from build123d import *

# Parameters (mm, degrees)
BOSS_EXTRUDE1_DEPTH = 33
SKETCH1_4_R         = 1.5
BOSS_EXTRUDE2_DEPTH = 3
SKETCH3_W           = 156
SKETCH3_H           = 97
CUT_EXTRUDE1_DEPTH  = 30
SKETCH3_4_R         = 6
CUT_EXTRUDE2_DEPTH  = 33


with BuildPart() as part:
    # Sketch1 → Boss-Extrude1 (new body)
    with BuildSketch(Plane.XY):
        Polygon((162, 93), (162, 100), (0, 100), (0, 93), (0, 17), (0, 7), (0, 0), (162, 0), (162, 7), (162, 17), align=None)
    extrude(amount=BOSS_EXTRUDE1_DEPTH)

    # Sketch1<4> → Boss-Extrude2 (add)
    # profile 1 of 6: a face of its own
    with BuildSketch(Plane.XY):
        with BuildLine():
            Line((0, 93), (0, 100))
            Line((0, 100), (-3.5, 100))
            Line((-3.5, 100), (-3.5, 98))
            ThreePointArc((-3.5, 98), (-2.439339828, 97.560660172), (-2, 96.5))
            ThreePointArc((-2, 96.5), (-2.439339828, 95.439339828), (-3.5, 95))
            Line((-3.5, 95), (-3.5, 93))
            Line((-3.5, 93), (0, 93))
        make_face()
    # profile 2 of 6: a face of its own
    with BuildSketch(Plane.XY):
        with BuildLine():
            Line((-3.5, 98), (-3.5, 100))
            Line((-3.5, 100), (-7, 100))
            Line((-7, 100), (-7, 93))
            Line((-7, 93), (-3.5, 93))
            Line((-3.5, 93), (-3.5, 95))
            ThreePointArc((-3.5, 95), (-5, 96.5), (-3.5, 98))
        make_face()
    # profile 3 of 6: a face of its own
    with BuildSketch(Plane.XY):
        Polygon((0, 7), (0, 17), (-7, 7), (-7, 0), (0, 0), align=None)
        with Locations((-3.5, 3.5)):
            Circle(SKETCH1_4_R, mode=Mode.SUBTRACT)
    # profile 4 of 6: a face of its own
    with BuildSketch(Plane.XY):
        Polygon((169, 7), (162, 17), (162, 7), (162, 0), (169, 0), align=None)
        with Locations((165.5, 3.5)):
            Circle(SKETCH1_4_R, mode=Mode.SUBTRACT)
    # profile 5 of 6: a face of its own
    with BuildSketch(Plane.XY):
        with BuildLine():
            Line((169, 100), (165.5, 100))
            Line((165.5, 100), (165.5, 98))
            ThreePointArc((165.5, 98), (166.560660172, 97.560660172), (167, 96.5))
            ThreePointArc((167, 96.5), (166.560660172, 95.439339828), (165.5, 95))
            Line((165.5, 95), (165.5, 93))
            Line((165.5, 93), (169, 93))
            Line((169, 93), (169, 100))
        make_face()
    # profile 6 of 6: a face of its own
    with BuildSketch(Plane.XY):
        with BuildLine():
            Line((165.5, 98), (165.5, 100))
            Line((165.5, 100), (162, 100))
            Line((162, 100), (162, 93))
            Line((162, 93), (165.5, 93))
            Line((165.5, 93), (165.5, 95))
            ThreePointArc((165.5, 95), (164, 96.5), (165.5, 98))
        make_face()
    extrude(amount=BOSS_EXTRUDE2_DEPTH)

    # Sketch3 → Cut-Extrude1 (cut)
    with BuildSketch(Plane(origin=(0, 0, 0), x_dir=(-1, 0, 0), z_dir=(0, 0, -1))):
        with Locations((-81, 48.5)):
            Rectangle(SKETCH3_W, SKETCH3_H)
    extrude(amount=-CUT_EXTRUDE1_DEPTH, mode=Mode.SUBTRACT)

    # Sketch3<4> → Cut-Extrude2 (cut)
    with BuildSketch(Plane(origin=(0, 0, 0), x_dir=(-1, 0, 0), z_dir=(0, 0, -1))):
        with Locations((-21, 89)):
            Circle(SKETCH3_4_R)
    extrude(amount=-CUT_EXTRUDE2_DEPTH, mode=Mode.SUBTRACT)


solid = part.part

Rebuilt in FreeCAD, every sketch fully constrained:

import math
import FreeCAD as App
import Part
import Sketcher
Q = App.Units.Quantity


def add_polygon(sketch, points):
    """Adds a closed chain of lines whose ends are joined by coincident constraints."""
    first, n = sketch.GeometryCount, len(points)
    for a, b in zip(points, points[1:] + points[:1]):
        sketch.addGeometry(Part.LineSegment(App.Vector(*a, 0), App.Vector(*b, 0)), False)
    for i in range(n):
        sketch.addConstraint(Sketcher.Constraint("Coincident", first + i, 2, first + (i + 1) % n, 1))

doc = App.newDocument("Part")
body = doc.addObject("PartDesign::Body", "Body")

# Sketch on XY plane
sketch1 = body.newObject("Sketcher::SketchObject", "Sketch")
sketch1.AttachmentSupport = (doc.getObject("XY_Plane"), [""])
sketch1.MapMode = "FlatFace"
add_polygon(sketch1, [(162, 100), (0, 100), (0, 0), (162, 0)])  # lines 0-3
sketch1.addConstraint([
    Sketcher.Constraint("Horizontal", 0),
    Sketcher.Constraint("Vertical", 1),
    Sketcher.Constraint("Horizontal", 2),
    Sketcher.Constraint("Vertical", 3),
    Sketcher.Constraint("Coincident", 1, 2, -1, 1),
    Sketcher.Constraint("DistanceX", 0, 2, 0, 1, Q("162 mm")),
    Sketcher.Constraint("DistanceY", 1, 2, 1, 1, Q("100 mm")),
])
pad1 = body.newObject("PartDesign::Pad", "Pad")
pad1.Profile = sketch1
pad1.Length = 33

# Sketch on XY plane
sketch2 = body.newObject("Sketcher::SketchObject", "Sketch001")
sketch2.AttachmentSupport = (doc.getObject("XY_Plane"), [""])
sketch2.MapMode = "FlatFace"
add_polygon(sketch2, [(0, 93), (0, 100), (-7, 100), (-7, 93)])  # lines 0-3
sketch2.addGeometry(Part.ArcOfCircle(Part.Circle(App.Vector(-3.5, 96.5, 0), App.Vector(0, 0, 1), 1.5), math.radians(0), math.radians(90)), False)  # 4
sketch2.addGeometry(Part.ArcOfCircle(Part.Circle(App.Vector(-3.5, 96.5, 0), App.Vector(0, 0, 1), 1.5), math.radians(-90), math.radians(0)), False)  # 5
sketch2.addGeometry(Part.ArcOfCircle(Part.Circle(App.Vector(-3.5, 96.5, 0), App.Vector(0, 0, 1), 1.5), math.radians(90), math.radians(270)), False)  # 6
add_polygon(sketch2, [(0, 17), (-7, 7), (-7, 0), (0, 0)])  # lines 7-10
sketch2.addGeometry(Part.Circle(App.Vector(-3.5, 3.5, 0), App.Vector(0, 0, 1), 1.5), False)  # 11
add_polygon(sketch2, [(169, 7), (162, 17), (162, 0), (169, 0)])  # lines 12-15
sketch2.addGeometry(Part.Circle(App.Vector(165.5, 3.5, 0), App.Vector(0, 0, 1), 1.5), False)  # 16
add_polygon(sketch2, [(169, 100), (162, 100), (162, 93), (169, 93)])  # lines 17-20
sketch2.addGeometry(Part.ArcOfCircle(Part.Circle(App.Vector(165.5, 96.5, 0), App.Vector(0, 0, 1), 1.5), math.radians(0), math.radians(90)), False)  # 21
sketch2.addGeometry(Part.ArcOfCircle(Part.Circle(App.Vector(165.5, 96.5, 0), App.Vector(0, 0, 1), 1.5), math.radians(-90), math.radians(0)), False)  # 22
sketch2.addGeometry(Part.ArcOfCircle(Part.Circle(App.Vector(165.5, 96.5, 0), App.Vector(0, 0, 1), 1.5), math.radians(90), math.radians(270)), False)  # 23
sketch2.addConstraint([
    Sketcher.Constraint("Tangent", 4, 1, 5, 2),
    Sketcher.Constraint("Tangent", 5, 1, 6, 2),
    Sketcher.Constraint("Tangent", 6, 1, 4, 2),
    Sketcher.Constraint("Tangent", 21, 1, 22, 2),
    Sketcher.Constraint("Tangent", 22, 1, 23, 2),
    Sketcher.Constraint("Tangent", 23, 1, 21, 2),
    Sketcher.Constraint("Vertical", 0),
    Sketcher.Constraint("Horizontal", 1),
    Sketcher.Constraint("Vertical", 2),
    Sketcher.Constraint("Horizontal", 3),
    Sketcher.Constraint("Vertical", 8),
    Sketcher.Constraint("Horizontal", 9),
    Sketcher.Constraint("Vertical", 10),
    Sketcher.Constraint("Vertical", 13),
    Sketcher.Constraint("Horizontal", 14),
    Sketcher.Constraint("Vertical", 15),
    Sketcher.Constraint("Horizontal", 17),
    Sketcher.Constraint("Vertical", 18),
    Sketcher.Constraint("Horizontal", 19),
    Sketcher.Constraint("Vertical", 20),
    Sketcher.Constraint("Coincident", 9, 2, -1, 1),
    Sketcher.Constraint("Equal", 6, 11),
    Sketcher.Constraint("Equal", 11, 16),
    Sketcher.Constraint("Equal", 16, 21),
    Sketcher.Constraint("PointOnObject", 0, 2, -2),
    Sketcher.Constraint("PointOnObject", 13, 2, -1),
    Sketcher.Constraint("Horizontal", 11, 3, 16, 3),
    Sketcher.Constraint("Horizontal", 6, 3, 21, 3),
    Sketcher.Constraint("Horizontal", 23, 3, 4, 1),
    Sketcher.Constraint("Horizontal", 10, 2, 12, 2),
    Sketcher.Constraint("Horizontal", 7, 2, 15, 2),
    Sketcher.Constraint("Horizontal", 1, 2, 17, 2),
    Sketcher.Constraint("Horizontal", 3, 2, 18, 2),
    Sketcher.Constraint("Horizontal", 4, 1, 21, 1),
    Sketcher.Constraint("Vertical", 6, 3, 11, 3),
    Sketcher.Constraint("Vertical", 16, 3, 21, 3),
    Sketcher.Constraint("Vertical", 11, 3, 5, 1),
    Sketcher.Constraint("Vertical", 5, 1, 6, 1),
    Sketcher.Constraint("Vertical", 2, 2, 7, 2),
    Sketcher.Constraint("Vertical", 13, 2, 17, 2),
    Sketcher.Constraint("Vertical", 15, 2, 19, 2),
    Sketcher.Constraint("Vertical", 23, 3, 22, 1),
    Sketcher.Constraint("Vertical", 22, 1, 23, 1),
    Sketcher.Constraint("Equal", 9, 14),
    Sketcher.Constraint("Equal", 19, 0),
    Sketcher.Constraint("Equal", 2, 8),
    Sketcher.Constraint("Diameter", 11, Q("3 mm")),
    Sketcher.Constraint("DistanceX", 1, 2, 1, 1, Q("7 mm")),
    Sketcher.Constraint("DistanceY", 10, 1, 10, 2, Q("17 mm")),
    Sketcher.Constraint("DistanceY", -1, 1, 0, 2, Q("100 mm")),
    Sketcher.Constraint("DistanceX", 4, 1, -1, 1, Q("2 mm")),
    Sketcher.Constraint("DistanceY", -1, 1, 5, 1, Q("95 mm")),
    Sketcher.Constraint("DistanceX", -1, 1, 12, 2, Q("162 mm")),
    Sketcher.Constraint("DistanceX", -1, 1, 21, 1, Q("167 mm")),
    Sketcher.Constraint("DistanceY", 11, 3, 5, 3, Q("93 mm")),
])
pad2 = body.newObject("PartDesign::Pad", "Pad001")
pad2.Profile = sketch2
pad2.Length = 3

# Sketch on XY plane
sketch3 = body.newObject("Sketcher::SketchObject", "Sketch002")
sketch3.AttachmentSupport = (doc.getObject("XY_Plane"), [""])
sketch3.MapMode = "FlatFace"
add_polygon(sketch3, [(159, 97), (159, 0), (3, 0), (3, 97)])  # lines 0-3
sketch3.addConstraint([
    Sketcher.Constraint("Vertical", 0),
    Sketcher.Constraint("Horizontal", 1),
    Sketcher.Constraint("Vertical", 2),
    Sketcher.Constraint("Horizontal", 3),
    Sketcher.Constraint("PointOnObject", 0, 2, -1),
    Sketcher.Constraint("DistanceX", 1, 2, 1, 1, Q("156 mm")),
    Sketcher.Constraint("DistanceY", 0, 2, 0, 1, Q("97 mm")),
    Sketcher.Constraint("DistanceX", -1, 1, 0, 2, Q("159 mm")),
])
pocket1 = body.newObject("PartDesign::Pocket", "Pocket")
pocket1.Profile = sketch3
pocket1.Length = 30
pocket1.Reversed = True

# Sketch on XY plane
sketch4 = body.newObject("Sketcher::SketchObject", "Sketch003")
sketch4.AttachmentSupport = (doc.getObject("XY_Plane"), [""])
sketch4.MapMode = "FlatFace"
sketch4.addGeometry(Part.Circle(App.Vector(21, 89, 0), App.Vector(0, 0, 1), 6), False)
sketch4.addConstraint([
    Sketcher.Constraint("Diameter", 0, Q("12 mm")),
    Sketcher.Constraint("DistanceX", -1, 1, 0, 3, Q("21 mm")),
    Sketcher.Constraint("DistanceY", -1, 1, 0, 3, Q("89 mm")),
])
pocket2 = body.newObject("PartDesign::Pocket", "Pocket001")
pocket2.Profile = sketch4
pocket2.Length = 33
pocket2.Reversed = True

doc.recompute()
